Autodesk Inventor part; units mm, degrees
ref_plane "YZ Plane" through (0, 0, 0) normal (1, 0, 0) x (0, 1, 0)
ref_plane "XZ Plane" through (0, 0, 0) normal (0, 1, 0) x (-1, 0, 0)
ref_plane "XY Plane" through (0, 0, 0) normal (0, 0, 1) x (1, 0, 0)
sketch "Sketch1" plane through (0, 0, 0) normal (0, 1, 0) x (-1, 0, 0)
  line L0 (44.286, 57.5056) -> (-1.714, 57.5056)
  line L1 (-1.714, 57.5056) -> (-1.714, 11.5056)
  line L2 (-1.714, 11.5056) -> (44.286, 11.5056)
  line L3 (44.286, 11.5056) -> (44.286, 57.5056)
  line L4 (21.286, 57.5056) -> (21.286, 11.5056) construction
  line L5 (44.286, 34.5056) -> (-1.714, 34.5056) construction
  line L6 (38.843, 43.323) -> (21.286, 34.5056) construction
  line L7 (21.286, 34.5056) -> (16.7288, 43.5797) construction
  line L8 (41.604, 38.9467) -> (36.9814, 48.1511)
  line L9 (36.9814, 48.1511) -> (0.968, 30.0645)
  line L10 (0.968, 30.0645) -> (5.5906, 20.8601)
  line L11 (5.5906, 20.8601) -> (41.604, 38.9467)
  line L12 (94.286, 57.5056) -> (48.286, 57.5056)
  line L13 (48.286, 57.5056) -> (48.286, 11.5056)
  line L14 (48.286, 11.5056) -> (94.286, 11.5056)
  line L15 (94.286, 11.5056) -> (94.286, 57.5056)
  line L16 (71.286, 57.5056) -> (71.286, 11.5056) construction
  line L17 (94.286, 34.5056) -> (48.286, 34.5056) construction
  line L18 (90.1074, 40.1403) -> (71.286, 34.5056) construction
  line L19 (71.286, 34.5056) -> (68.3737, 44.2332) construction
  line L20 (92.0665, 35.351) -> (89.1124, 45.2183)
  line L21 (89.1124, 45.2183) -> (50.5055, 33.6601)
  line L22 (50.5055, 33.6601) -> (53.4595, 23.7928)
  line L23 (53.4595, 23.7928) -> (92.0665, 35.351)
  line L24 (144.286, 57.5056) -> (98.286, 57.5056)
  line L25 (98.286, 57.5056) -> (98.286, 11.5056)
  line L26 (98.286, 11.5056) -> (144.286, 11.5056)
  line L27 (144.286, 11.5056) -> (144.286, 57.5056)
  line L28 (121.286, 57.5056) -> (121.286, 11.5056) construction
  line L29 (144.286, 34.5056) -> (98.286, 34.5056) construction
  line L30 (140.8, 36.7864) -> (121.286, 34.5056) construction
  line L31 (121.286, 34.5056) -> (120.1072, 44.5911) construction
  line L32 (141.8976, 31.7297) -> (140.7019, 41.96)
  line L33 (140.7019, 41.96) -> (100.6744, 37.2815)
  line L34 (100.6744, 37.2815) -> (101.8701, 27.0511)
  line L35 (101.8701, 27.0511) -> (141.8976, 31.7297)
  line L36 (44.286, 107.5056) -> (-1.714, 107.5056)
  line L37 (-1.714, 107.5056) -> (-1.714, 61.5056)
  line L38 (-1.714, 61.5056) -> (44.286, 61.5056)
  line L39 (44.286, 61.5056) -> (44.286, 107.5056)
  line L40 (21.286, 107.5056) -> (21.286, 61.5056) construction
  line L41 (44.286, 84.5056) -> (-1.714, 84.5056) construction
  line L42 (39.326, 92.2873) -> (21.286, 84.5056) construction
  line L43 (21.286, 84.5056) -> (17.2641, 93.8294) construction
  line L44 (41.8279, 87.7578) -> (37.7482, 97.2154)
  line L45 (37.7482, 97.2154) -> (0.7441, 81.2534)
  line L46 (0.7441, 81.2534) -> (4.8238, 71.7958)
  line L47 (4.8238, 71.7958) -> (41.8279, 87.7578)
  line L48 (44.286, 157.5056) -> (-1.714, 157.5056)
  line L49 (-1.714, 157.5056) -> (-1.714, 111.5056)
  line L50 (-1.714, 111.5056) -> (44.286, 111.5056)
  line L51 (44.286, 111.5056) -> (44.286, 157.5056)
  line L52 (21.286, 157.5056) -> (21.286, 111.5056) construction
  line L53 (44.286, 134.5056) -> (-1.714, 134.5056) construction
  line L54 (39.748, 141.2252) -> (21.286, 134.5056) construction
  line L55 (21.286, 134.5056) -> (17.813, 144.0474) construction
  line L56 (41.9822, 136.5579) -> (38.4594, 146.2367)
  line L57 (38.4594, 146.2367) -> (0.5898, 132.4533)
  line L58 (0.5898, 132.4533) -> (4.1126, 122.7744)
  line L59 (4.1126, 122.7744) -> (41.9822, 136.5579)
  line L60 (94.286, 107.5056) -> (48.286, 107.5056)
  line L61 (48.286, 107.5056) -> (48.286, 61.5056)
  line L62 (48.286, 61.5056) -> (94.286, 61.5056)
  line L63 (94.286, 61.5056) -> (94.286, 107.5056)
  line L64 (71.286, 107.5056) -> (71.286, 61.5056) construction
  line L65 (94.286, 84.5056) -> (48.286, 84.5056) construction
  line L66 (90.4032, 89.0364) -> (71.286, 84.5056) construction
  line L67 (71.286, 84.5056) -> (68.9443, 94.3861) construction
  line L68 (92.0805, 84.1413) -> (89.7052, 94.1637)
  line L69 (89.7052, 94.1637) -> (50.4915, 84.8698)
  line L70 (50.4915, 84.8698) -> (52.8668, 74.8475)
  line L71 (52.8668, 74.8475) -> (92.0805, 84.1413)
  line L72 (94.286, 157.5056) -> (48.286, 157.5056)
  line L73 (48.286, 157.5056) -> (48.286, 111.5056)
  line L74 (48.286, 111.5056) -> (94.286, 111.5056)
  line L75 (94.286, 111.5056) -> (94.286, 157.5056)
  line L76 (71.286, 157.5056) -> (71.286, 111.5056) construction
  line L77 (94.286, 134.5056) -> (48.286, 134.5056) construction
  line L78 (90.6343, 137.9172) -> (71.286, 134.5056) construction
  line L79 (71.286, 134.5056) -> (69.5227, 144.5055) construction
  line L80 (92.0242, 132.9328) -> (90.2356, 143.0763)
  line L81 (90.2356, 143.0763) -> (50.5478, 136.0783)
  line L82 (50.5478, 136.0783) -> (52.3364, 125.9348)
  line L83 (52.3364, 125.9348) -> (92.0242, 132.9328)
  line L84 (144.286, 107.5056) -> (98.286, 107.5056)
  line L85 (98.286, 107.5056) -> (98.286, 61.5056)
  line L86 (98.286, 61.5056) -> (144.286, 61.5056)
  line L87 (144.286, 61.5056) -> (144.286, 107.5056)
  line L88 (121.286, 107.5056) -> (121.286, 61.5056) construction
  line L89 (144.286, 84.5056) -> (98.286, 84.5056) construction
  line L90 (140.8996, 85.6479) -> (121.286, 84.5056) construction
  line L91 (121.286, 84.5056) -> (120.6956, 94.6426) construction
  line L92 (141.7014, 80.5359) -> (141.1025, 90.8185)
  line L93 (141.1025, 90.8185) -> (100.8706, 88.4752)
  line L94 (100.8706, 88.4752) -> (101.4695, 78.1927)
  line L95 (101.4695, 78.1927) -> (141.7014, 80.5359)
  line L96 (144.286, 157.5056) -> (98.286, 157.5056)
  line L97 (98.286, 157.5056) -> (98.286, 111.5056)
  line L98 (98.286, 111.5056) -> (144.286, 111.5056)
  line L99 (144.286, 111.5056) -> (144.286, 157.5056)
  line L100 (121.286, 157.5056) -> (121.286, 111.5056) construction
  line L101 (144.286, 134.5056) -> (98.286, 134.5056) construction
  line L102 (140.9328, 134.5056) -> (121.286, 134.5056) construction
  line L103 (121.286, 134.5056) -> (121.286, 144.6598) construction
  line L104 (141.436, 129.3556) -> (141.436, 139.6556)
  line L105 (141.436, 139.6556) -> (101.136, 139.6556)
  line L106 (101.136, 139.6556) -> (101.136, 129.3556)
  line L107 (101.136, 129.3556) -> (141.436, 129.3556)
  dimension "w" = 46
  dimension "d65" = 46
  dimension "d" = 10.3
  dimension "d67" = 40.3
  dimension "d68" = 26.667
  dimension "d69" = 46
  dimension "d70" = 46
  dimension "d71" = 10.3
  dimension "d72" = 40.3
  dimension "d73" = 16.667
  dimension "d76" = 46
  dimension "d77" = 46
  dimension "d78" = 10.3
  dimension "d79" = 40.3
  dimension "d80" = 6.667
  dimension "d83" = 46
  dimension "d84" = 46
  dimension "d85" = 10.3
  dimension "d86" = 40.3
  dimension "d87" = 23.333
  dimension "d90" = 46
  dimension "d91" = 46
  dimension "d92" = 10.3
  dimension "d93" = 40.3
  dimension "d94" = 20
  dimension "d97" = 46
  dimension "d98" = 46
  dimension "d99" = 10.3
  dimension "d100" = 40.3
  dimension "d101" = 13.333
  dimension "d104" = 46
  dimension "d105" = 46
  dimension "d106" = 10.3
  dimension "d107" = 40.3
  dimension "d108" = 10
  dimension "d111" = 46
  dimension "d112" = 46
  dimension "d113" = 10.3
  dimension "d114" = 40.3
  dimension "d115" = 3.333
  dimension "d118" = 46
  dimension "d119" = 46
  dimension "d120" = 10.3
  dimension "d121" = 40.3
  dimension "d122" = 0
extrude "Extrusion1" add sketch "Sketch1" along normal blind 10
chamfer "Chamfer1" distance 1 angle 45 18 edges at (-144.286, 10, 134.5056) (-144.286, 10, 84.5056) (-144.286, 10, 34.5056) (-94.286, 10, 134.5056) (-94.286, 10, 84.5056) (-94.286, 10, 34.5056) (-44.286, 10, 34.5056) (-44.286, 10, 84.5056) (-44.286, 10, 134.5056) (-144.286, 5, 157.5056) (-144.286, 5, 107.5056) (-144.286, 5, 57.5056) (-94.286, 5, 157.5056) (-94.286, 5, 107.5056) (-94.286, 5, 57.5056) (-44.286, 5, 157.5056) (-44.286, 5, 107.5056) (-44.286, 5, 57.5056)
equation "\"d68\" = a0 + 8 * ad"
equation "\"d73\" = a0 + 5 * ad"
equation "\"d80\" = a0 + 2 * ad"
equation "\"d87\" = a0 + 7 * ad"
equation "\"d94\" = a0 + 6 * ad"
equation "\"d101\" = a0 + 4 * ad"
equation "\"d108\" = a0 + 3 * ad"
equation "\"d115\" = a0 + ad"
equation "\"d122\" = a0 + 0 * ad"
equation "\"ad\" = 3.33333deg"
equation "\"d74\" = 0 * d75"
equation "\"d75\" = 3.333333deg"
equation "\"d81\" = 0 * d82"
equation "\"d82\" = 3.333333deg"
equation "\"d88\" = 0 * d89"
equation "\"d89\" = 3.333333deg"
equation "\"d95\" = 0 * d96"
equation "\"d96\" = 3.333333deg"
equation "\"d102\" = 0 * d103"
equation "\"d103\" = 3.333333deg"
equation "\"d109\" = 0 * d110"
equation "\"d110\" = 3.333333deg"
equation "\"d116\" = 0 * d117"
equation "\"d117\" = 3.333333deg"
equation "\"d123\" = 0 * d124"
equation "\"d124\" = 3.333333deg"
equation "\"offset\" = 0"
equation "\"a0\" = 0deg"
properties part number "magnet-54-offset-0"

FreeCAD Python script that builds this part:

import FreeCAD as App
import Part
import Sketcher
from FreeCAD import Vector
Q = App.Units.Quantity


def edges_at(feature, points):
    """Names of the edges that pass closest to the given points."""
    edges = feature.Shape.Edges
    near = lambda p: min(range(len(edges)), key=lambda i: edges[i].distToShape(Part.Vertex(*p))[0])
    return sorted({f"Edge{near(p) + 1}" for p in points})


def add_polygon(sketch, points):
    """Adds a closed chain of lines whose ends are joined by coincident constraints."""
    first, n = sketch.GeometryCount, len(points)
    for a, b in zip(points, points[1:] + points[:1]):
        sketch.addGeometry(Part.LineSegment(App.Vector(*a, 0), App.Vector(*b, 0)), False)
    for i in range(n):
        sketch.addConstraint(Sketcher.Constraint("Coincident", first + i, 2, first + (i + 1) % n, 1))

doc = App.newDocument("Part")
body = doc.addObject("PartDesign::Body", "Body")
body.AllowCompound = True

sketch1 = body.newObject("Sketcher::SketchObject", "Sketch")
sketch1.AttachmentSupport = (doc.getObject("XZ_Plane"), [""])
sketch1.MapMode = "FlatFace"
add_polygon(sketch1, [(-44, 12), (-44, 58), (2, 58), (2, 12)])
add_polygon(sketch1, [(-37, 48), (-42, 39), (-6, 21), (-1, 30)])
add_polygon(sketch1, [(-94, 12), (-94, 58), (-48, 58), (-48, 12)])
add_polygon(sketch1, [(-89, 45), (-92, 35), (-53, 24), (-51, 34)])
add_polygon(sketch1, [(-144, 12), (-144, 58), (-98, 58), (-98, 12)])
add_polygon(sketch1, [(-141, 42), (-142, 32), (-102, 27), (-101, 37)])
add_polygon(sketch1, [(-44, 62), (-44, 108), (2, 108), (2, 62)])
add_polygon(sketch1, [(-38, 97), (-42, 88), (-5, 72), (-1, 81)])
add_polygon(sketch1, [(-44, 112), (-44, 158), (2, 158), (2, 112)])
add_polygon(sketch1, [(-38, 146), (-42, 137), (-4, 123), (-1, 132)])
add_polygon(sketch1, [(-94, 62), (-94, 108), (-48, 108), (-48, 62)])
add_polygon(sketch1, [(-90, 94), (-92, 84), (-53, 75), (-50, 85)])
add_polygon(sketch1, [(-94, 112), (-94, 158), (-48, 158), (-48, 112)])
add_polygon(sketch1, [(-90, 143), (-92, 133), (-52, 126), (-51, 136)])
add_polygon(sketch1, [(-144, 62), (-144, 108), (-98, 108), (-98, 62)])
add_polygon(sketch1, [(-141, 91), (-142, 81), (-101, 78), (-101, 88)])
add_polygon(sketch1, [(-144, 112), (-144, 158), (-98, 158), (-98, 112)])
add_polygon(sketch1, [(-141, 140), (-141, 129), (-101, 129), (-101, 140)])
sketch1.addConstraint([
    Sketcher.Constraint("Vertical", 0),
    Sketcher.Constraint("Horizontal", 1),
    Sketcher.Constraint("Vertical", 2),
    Sketcher.Constraint("Horizontal", 3),
    Sketcher.Constraint("Vertical", 8),
    Sketcher.Constraint("Horizontal", 9),
    Sketcher.Constraint("Vertical", 10),
    Sketcher.Constraint("Horizontal", 11),
    Sketcher.Constraint("Vertical", 16),
    Sketcher.Constraint("Horizontal", 17),
    Sketcher.Constraint("Vertical", 18),
    Sketcher.Constraint("Horizontal", 19),
    Sketcher.Constraint("Vertical", 24),
    Sketcher.Constraint("Horizontal", 25),
    Sketcher.Constraint("Vertical", 26),
    Sketcher.Constraint("Horizontal", 27),
    Sketcher.Constraint("Vertical", 32),
    Sketcher.Constraint("Horizontal", 33),
    Sketcher.Constraint("Vertical", 34),
    Sketcher.Constraint("Horizontal", 35),
    Sketcher.Constraint("Vertical", 40),
    Sketcher.Constraint("Horizontal", 41),
    Sketcher.Constraint("Vertical", 42),
    Sketcher.Constraint("Horizontal", 43),
    Sketcher.Constraint("Vertical", 48),
    Sketcher.Constraint("Horizontal", 49),
    Sketcher.Constraint("Vertical", 50),
    Sketcher.Constraint("Horizontal", 51),
    Sketcher.Constraint("Vertical", 56),
    Sketcher.Constraint("Horizontal", 57),
    Sketcher.Constraint("Vertical", 58),
    Sketcher.Constraint("Horizontal", 59),
    Sketcher.Constraint("Vertical", 64),
    Sketcher.Constraint("Horizontal", 65),
    Sketcher.Constraint("Vertical", 66),
    Sketcher.Constraint("Horizontal", 67),
    Sketcher.Constraint("Vertical", 68),
    Sketcher.Constraint("Horizontal", 69),
    Sketcher.Constraint("Vertical", 70),
    Sketcher.Constraint("Horizontal", 71),
    Sketcher.Constraint("Perpendicular", 4, 5),
    Sketcher.Constraint("Perpendicular", 5, 6),
    Sketcher.Constraint("Perpendicular", 6, 7),
    Sketcher.Constraint("Perpendicular", 12, 13),
    Sketcher.Constraint("Perpendicular", 13, 14),
    Sketcher.Constraint("Perpendicular", 14, 15),
    Sketcher.Constraint("Perpendicular", 20, 21),
    Sketcher.Constraint("Perpendicular", 21, 22),
    Sketcher.Constraint("Perpendicular", 22, 23),
    Sketcher.Constraint("Perpendicular", 28, 29),
    Sketcher.Constraint("Perpendicular", 29, 30),
    Sketcher.Constraint("Perpendicular", 30, 31),
    Sketcher.Constraint("Perpendicular", 36, 37),
    Sketcher.Constraint("Perpendicular", 37, 38),
    Sketcher.Constraint("Perpendicular", 38, 39),
    Sketcher.Constraint("Perpendicular", 44, 45),
    Sketcher.Constraint("Perpendicular", 45, 46),
    Sketcher.Constraint("Perpendicular", 46, 47),
    Sketcher.Constraint("Perpendicular", 52, 53),
    Sketcher.Constraint("Perpendicular", 53, 54),
    Sketcher.Constraint("Perpendicular", 54, 55),
    Sketcher.Constraint("Perpendicular", 60, 61),
    Sketcher.Constraint("Perpendicular", 61, 62),
    Sketcher.Constraint("Perpendicular", 62, 63),
    Sketcher.Constraint("Horizontal", 1, 2, 8, 2),
    Sketcher.Constraint("Horizontal", 3, 2, 10, 2),
    Sketcher.Constraint("Horizontal", 9, 2, 16, 2),
    Sketcher.Constraint("Horizontal", 11, 2, 18, 2),
    Sketcher.Constraint("Horizontal", 25, 2, 40, 2),
    Sketcher.Constraint("Horizontal", 27, 2, 42, 2),
    Sketcher.Constraint("Horizontal", 33, 2, 48, 2),
    Sketcher.Constraint("Horizontal", 35, 2, 50, 2),
    Sketcher.Constraint("Horizontal", 41, 2, 56, 2),
    Sketcher.Constraint("Horizontal", 43, 2, 58, 2),
    Sketcher.Constraint("Horizontal", 49, 2, 64, 2),
    Sketcher.Constraint("Horizontal", 51, 2, 66, 2),
    Sketcher.Constraint("Vertical", 3, 2, 24, 2),
    Sketcher.Constraint("Vertical", 2, 2, 25, 2),
    Sketcher.Constraint("Vertical", 27, 2, 32, 2),
    Sketcher.Constraint("Vertical", 26, 2, 33, 2),
    Sketcher.Constraint("Vertical", 11, 2, 40, 2),
    Sketcher.Constraint("Vertical", 10, 2, 41, 2),
    Sketcher.Constraint("Vertical", 43, 2, 48, 2),
    Sketcher.Constraint("Vertical", 42, 2, 49, 2),
    Sketcher.Constraint("Vertical", 19, 2, 56, 2),
    Sketcher.Constraint("Vertical", 18, 2, 57, 2),
    Sketcher.Constraint("Vertical", 59, 2, 64, 2),
    Sketcher.Constraint("Vertical", 58, 2, 65, 2),
    Sketcher.Constraint("Equal", 3, 9),
    Sketcher.Constraint("Equal", 11, 17),
    Sketcher.Constraint("Equal", 67, 0),
    Sketcher.Constraint("Equal", 18, 24),
    Sketcher.Constraint("Equal", 26, 32),
    Sketcher.Constraint("Equal", 6, 12),
    Sketcher.Constraint("Equal", 7, 13),
    Sketcher.Constraint("Equal", 14, 20),
    Sketcher.Constraint("Equal", 15, 21),
    Sketcher.Constraint("Equal", 22, 28),
    Sketcher.Constraint("Equal", 23, 29),
    Sketcher.Constraint("Equal", 30, 36),
    Sketcher.Constraint("Equal", 31, 37),
    Sketcher.Constraint("Equal", 38, 44),
    Sketcher.Constraint("Equal", 39, 45),
    Sketcher.Constraint("Equal", 46, 52),
    Sketcher.Constraint("Equal", 47, 53),
    Sketcher.Constraint("Equal", 54, 60),
    Sketcher.Constraint("Equal", 55, 61),
    Sketcher.Constraint("DistanceX", 1, 1, 1, 2, 46.0),
    Sketcher.Constraint("Angle", 37, Q("-20.0001 deg")),
    Sketcher.Constraint("Angle", 53, Q("-10 deg")),
    Sketcher.Constraint("DistanceX", 69, 1, 69, 2, 40.3),
    Sketcher.Constraint("DistanceY", 68, 2, 68, 1, 10.3),
    Sketcher.Constraint("Distance", 4, 10.3),
    Sketcher.Constraint("Distance", 5, 40.3),
    Sketcher.Constraint("DistanceY", -1, 1, 5, 2, 20.86),
    Sketcher.Constraint("DistanceY", -1, 1, 14, 2, 33.66),
    Sketcher.Constraint("DistanceX", 21, 2, -1, 1, 101.87),
    Sketcher.Constraint("DistanceY", -1, 1, 23, 2, 41.96),
    Sketcher.Constraint("DistanceX", 0, 2, -1, 1, 44.286),
    Sketcher.Constraint("DistanceX", 4, 2, -1, 1, 41.604),
    Sketcher.Constraint("DistanceX", 6, 2, -1, 1, 0.968),
    Sketcher.Constraint("DistanceX", 8, 2, -1, 1, 94.286),
    Sketcher.Constraint("DistanceY", -1, 1, 12, 2, 35.351),
    Sketcher.Constraint("DistanceX", 16, 2, -1, 1, 144.286),
    Sketcher.Constraint("DistanceY", -1, 1, 21, 2, 27.051),
    Sketcher.Constraint("DistanceX", 28, 2, -1, 1, 41.828),
    Sketcher.Constraint("DistanceX", 30, 2, -1, 1, 0.744),
    Sketcher.Constraint("DistanceY", -1, 1, 36, 2, 136.558),
    Sketcher.Constraint("DistanceY", -1, 1, 60, 2, 80.536),
    Sketcher.Constraint("DistanceX", 68, 2, -1, 1, 141.436),
    Sketcher.Constraint("DistanceY", -1, 1, 0, 2, 57.5056),
    Sketcher.Constraint("DistanceX", 12, 2, -1, 1, 92.0665),
    Sketcher.Constraint("DistanceY", -1, 1, 24, 2, 107.5056),
    Sketcher.Constraint("DistanceY", -1, 1, 28, 2, 87.7578),
    Sketcher.Constraint("DistanceY", -1, 1, 32, 2, 157.5056),
    Sketcher.Constraint("DistanceX", 36, 2, -1, 1, 41.9822),
    Sketcher.Constraint("DistanceX", 44, 2, -1, 1, 92.0805),
    Sketcher.Constraint("DistanceY", -1, 1, 44, 2, 84.1413),
    Sketcher.Constraint("DistanceX", 45, 2, -1, 1, 52.8668),
    Sketcher.Constraint("DistanceX", 52, 2, -1, 1, 92.0242),
    Sketcher.Constraint("DistanceY", -1, 1, 52, 2, 132.9328),
    Sketcher.Constraint("DistanceX", 60, 2, -1, 1, 141.7014),
    Sketcher.Constraint("DistanceX", 61, 2, -1, 1, 101.4695),
    Sketcher.Constraint("DistanceY", -1, 1, 68, 2, 129.3556),
])
pad1 = body.newObject("PartDesign::Pad", "Pad")
pad1.Profile = sketch1
pad1.Length = 10
pad1.Reversed = True
doc.recompute()

chamfer = body.newObject("PartDesign::Chamfer", "Chamfer")
chamfer.Base = (pad1, edges_at(pad1, [
    (-144.286, 10, 134.506),
    (-144.286, 10, 84.506),
    (-144.286, 10, 34.506),
    (-94.286, 10, 134.506),
    (-94.286, 10, 84.506),
    (-94.286, 10, 34.506),
    (-44.286, 10, 34.506),
    (-44.286, 10, 84.506),
    (-44.286, 10, 134.506),
    (-144.286, 5, 157.506),
    (-144.286, 5, 107.506),
    (-144.286, 5, 57.506),
    (-94.286, 5, 157.506),
    (-94.286, 5, 107.506),
    (-94.286, 5, 57.506),
    (-44.286, 5, 157.506),
    (-44.286, 5, 107.506),
    (-44.286, 5, 57.506),
]))
chamfer.Size = 1

doc.recompute()
